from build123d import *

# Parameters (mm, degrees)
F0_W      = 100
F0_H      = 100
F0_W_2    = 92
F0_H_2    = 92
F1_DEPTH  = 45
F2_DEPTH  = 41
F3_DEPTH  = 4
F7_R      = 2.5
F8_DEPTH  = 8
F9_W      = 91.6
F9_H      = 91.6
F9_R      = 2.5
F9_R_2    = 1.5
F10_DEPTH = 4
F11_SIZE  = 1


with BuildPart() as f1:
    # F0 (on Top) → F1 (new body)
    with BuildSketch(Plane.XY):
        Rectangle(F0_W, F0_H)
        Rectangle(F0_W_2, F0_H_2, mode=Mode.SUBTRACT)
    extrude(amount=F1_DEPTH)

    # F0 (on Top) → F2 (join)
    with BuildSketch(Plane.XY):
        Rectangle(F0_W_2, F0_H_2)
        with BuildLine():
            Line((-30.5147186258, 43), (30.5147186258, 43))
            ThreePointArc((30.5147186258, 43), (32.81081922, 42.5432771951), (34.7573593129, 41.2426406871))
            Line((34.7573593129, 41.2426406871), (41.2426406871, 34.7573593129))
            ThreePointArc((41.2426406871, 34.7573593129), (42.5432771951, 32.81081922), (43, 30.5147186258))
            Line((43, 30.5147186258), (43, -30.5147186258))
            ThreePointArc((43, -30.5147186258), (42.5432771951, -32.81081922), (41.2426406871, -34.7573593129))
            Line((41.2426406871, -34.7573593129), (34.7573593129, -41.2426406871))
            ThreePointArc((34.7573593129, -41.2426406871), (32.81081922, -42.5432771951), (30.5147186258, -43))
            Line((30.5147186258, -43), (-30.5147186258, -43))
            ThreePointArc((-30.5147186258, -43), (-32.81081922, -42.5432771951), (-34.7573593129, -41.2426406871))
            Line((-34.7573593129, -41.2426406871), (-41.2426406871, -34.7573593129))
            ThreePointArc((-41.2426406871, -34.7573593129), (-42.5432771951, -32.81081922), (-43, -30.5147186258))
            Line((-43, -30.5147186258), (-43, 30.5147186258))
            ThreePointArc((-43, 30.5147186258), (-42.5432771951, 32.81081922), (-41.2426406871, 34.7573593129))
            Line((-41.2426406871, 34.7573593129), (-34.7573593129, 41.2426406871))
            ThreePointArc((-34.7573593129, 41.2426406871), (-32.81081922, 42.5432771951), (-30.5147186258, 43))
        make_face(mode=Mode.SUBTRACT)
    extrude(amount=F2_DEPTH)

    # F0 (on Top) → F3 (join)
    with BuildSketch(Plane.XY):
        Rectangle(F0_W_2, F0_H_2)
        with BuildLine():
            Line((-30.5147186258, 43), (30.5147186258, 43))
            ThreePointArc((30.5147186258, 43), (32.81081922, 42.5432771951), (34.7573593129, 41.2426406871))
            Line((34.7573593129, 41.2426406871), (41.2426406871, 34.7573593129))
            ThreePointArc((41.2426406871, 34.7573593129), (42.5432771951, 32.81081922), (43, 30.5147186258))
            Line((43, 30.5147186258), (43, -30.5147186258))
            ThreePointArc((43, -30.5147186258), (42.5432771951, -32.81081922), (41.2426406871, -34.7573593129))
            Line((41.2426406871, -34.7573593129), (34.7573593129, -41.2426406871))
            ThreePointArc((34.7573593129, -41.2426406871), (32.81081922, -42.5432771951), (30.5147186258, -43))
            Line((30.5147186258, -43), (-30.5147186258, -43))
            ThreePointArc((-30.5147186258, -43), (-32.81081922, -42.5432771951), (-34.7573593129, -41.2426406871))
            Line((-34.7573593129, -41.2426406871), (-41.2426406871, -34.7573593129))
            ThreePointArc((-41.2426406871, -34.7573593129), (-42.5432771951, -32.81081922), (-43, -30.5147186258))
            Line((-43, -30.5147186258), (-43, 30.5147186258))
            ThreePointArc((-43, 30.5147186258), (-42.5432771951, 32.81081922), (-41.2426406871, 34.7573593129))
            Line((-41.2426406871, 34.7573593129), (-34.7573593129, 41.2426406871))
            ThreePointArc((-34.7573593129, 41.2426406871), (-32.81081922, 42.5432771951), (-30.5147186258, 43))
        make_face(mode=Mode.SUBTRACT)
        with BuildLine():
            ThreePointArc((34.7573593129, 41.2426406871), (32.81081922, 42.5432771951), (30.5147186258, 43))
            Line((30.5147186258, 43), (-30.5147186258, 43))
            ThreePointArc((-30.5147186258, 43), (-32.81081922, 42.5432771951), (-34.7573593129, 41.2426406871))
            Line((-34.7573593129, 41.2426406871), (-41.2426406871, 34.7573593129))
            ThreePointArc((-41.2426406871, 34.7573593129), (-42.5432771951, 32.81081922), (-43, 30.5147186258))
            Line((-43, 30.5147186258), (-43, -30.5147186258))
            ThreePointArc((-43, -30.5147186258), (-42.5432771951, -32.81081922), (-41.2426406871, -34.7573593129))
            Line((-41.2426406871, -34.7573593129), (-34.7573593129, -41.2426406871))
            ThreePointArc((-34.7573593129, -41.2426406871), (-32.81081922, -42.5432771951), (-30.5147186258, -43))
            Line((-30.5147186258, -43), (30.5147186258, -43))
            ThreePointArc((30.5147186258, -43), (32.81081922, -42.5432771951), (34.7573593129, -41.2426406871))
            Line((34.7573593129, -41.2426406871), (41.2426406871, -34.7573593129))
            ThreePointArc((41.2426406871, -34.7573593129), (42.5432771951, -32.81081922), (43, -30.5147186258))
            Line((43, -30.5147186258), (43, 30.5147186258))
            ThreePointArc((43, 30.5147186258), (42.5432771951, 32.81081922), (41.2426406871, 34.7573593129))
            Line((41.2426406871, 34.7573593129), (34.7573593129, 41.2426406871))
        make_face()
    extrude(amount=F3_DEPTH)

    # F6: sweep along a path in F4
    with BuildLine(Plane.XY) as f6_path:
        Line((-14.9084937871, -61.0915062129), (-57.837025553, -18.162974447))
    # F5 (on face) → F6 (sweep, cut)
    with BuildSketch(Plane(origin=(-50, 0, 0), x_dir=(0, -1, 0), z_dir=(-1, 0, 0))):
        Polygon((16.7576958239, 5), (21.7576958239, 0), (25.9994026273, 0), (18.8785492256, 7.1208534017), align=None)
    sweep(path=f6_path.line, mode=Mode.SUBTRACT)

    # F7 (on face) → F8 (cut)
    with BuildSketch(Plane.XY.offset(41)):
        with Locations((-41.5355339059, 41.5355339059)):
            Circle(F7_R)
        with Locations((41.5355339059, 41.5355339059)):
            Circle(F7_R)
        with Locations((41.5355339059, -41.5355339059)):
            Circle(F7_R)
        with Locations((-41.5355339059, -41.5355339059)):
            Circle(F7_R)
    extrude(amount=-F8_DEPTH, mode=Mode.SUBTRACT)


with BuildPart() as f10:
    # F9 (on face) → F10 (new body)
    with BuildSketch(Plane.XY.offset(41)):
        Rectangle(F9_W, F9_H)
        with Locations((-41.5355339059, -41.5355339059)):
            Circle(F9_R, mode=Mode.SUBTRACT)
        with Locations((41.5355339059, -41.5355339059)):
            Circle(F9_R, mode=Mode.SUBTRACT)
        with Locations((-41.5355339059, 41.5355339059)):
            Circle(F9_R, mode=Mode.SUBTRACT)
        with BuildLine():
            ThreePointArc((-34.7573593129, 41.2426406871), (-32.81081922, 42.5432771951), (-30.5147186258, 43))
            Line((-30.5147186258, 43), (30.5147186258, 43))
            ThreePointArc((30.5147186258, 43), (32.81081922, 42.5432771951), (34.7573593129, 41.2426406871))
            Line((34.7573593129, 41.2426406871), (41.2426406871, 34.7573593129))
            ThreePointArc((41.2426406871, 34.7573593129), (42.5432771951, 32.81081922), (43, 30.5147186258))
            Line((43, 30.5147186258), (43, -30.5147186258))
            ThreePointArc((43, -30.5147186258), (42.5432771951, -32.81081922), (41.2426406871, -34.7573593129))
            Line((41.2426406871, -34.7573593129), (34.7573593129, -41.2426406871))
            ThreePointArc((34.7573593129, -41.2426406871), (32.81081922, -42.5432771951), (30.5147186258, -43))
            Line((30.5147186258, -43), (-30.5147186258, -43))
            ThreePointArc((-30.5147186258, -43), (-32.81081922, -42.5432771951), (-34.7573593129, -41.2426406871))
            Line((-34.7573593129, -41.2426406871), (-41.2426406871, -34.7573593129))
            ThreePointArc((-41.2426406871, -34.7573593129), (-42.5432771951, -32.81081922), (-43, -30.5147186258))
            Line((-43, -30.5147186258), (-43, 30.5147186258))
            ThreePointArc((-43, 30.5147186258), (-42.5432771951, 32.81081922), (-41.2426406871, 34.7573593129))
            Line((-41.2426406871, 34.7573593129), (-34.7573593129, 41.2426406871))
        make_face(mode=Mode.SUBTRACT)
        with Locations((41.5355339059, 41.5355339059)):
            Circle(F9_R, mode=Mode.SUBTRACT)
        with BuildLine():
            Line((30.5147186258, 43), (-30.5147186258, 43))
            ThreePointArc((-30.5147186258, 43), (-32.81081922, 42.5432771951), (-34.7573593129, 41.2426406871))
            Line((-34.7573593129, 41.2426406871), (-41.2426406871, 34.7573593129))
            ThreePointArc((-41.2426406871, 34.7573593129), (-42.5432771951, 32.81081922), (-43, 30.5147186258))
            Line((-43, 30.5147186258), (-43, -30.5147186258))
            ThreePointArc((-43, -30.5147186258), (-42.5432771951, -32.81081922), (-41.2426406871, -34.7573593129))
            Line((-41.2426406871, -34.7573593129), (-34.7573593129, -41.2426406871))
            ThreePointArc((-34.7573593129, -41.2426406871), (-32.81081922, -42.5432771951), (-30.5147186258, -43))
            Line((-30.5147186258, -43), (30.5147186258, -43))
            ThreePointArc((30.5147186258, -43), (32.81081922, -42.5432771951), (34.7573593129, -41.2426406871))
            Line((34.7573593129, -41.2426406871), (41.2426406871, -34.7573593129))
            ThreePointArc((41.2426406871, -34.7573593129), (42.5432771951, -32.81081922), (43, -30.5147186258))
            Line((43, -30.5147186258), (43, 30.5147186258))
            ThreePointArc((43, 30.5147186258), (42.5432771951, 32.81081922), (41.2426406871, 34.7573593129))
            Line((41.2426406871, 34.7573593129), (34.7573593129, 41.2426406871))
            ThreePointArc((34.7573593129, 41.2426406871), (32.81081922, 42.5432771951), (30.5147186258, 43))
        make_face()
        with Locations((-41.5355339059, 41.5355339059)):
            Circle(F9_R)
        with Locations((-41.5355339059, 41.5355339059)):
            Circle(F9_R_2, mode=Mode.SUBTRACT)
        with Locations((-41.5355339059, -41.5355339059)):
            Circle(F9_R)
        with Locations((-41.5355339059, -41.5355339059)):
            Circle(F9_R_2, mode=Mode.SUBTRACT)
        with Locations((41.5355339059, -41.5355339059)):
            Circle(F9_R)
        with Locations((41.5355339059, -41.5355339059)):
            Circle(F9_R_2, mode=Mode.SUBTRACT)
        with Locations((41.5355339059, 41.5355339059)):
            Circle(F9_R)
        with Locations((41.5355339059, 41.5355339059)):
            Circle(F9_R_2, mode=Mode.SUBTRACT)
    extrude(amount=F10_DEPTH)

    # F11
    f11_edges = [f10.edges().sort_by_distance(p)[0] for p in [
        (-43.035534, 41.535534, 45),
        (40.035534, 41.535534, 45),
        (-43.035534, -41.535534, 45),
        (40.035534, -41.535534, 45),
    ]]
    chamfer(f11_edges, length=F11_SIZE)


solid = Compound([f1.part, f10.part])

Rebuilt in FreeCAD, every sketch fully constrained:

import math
import FreeCAD as App
import Part
import Sketcher
from FreeCAD import Vector
Q = App.Units.Quantity


def edges_at(feature, points):
    """Names of the edges that pass closest to the given points."""
    edges = feature.Shape.Edges
    near = lambda p: min(range(len(edges)), key=lambda i: edges[i].distToShape(Part.Vertex(*p))[0])
    return sorted({f"Edge{near(p) + 1}" for p in points})


def add_polygon(sketch, points):
    """Adds a closed chain of lines whose ends are joined by coincident constraints."""
    first, n = sketch.GeometryCount, len(points)
    for a, b in zip(points, points[1:] + points[:1]):
        sketch.addGeometry(Part.LineSegment(App.Vector(*a, 0), App.Vector(*b, 0)), False)
    for i in range(n):
        sketch.addConstraint(Sketcher.Constraint("Coincident", first + i, 2, first + (i + 1) % n, 1))

doc = App.newDocument("Part")
body = doc.addObject("PartDesign::Body", "Body")

# Sketch on XY plane
sketch1 = body.newObject("Sketcher::SketchObject", "Sketch")
sketch1.AttachmentSupport = (doc.getObject("XY_Plane"), [""])
sketch1.MapMode = "FlatFace"
add_polygon(sketch1, [(-50, 50), (-50, -50), (50, -50), (50, 50)])  # lines 0-3
add_polygon(sketch1, [(46, -46), (-46, -46), (-46, 46), (46, 46)])  # lines 4-7
sketch1.addConstraint(Sketcher.Constraint("Vertical", 0))
sketch1.addConstraint(Sketcher.Constraint("Horizontal", 1))
sketch1.addConstraint(Sketcher.Constraint("Vertical", 2))
sketch1.addConstraint(Sketcher.Constraint("Horizontal", 3))
sketch1.addConstraint(Sketcher.Constraint("Horizontal", 4))
sketch1.addConstraint(Sketcher.Constraint("Vertical", 5))
sketch1.addConstraint(Sketcher.Constraint("Horizontal", 6))
sketch1.addConstraint(Sketcher.Constraint("Vertical", 7))
sketch1.addConstraint(Sketcher.Constraint("Symmetric", 0, 2, 2, 2, -1, 1))
sketch1.addConstraint(Sketcher.Constraint("Symmetric", 4, 2, 6, 2, -1, 1))
sketch1.addConstraint(Sketcher.Constraint("Equal", 3, 0))
sketch1.addConstraint(Sketcher.Constraint("Equal", 6, 5))
sketch1.addConstraint(Sketcher.Constraint("DistanceX", 1, 1, 1, 2, Q("100 mm")))
sketch1.addConstraint(Sketcher.Constraint("DistanceX", 4, 2, 4, 1, Q("92 mm")))
pad1 = body.newObject("PartDesign::Pad", "Pad")
pad1.Profile = sketch1
pad1.Length = 45

# Sketch on XY plane
sketch2 = body.newObject("Sketcher::SketchObject", "Sketch001")
sketch2.AttachmentSupport = (doc.getObject("XY_Plane"), [""])
sketch2.MapMode = "FlatFace"
add_polygon(sketch2, [(-46, 46), (-46, -46), (46, -46), (46, 46)])  # lines 0-3
sketch2.addGeometry(Part.ArcOfCircle(Part.Circle(Vector(-30.514719, 37, 0), Vector(0, 0, 1), 6), math.radians(90), math.radians(135)), False)  # 4
sketch2.addGeometry(Part.LineSegment(Vector(-30.514719, 43, 0), Vector(30.514719, 43, 0)), False)  # 5
sketch2.addGeometry(Part.ArcOfCircle(Part.Circle(Vector(30.514719, 37, 0), Vector(0, 0, 1), 6), math.radians(45), math.radians(90)), False)  # 6
sketch2.addGeometry(Part.LineSegment(Vector(34.757359, 41.242641, 0), Vector(41.242641, 34.757359, 0)), False)  # 7
sketch2.addGeometry(Part.ArcOfCircle(Part.Circle(Vector(37, 30.514719, 0), Vector(0, 0, 1), 6), math.radians(0), math.radians(45)), False)  # 8
sketch2.addGeometry(Part.LineSegment(Vector(43, 30.514719, 0), Vector(43, -30.514719, 0)), False)  # 9
sketch2.addGeometry(Part.ArcOfCircle(Part.Circle(Vector(37, -30.514719, 0), Vector(0, 0, 1), 6), math.radians(-45), math.radians(0)), False)  # 10
sketch2.addGeometry(Part.LineSegment(Vector(41.242641, -34.757359, 0), Vector(34.757359, -41.242641, 0)), False)  # 11
sketch2.addGeometry(Part.ArcOfCircle(Part.Circle(Vector(30.514719, -37, 0), Vector(0, 0, 1), 6), math.radians(-90), math.radians(-45)), False)  # 12
sketch2.addGeometry(Part.LineSegment(Vector(30.514719, -43, 0), Vector(-30.514719, -43, 0)), False)  # 13
sketch2.addGeometry(Part.ArcOfCircle(Part.Circle(Vector(-30.514719, -37, 0), Vector(0, 0, 1), 6), math.radians(-135), math.radians(-90)), False)  # 14
sketch2.addGeometry(Part.LineSegment(Vector(-34.757359, -41.242641, 0), Vector(-41.242641, -34.757359, 0)), False)  # 15
sketch2.addGeometry(Part.ArcOfCircle(Part.Circle(Vector(-37, -30.514719, 0), Vector(0, 0, 1), 6), math.radians(180), math.radians(225)), False)  # 16
sketch2.addGeometry(Part.LineSegment(Vector(-43, -30.514719, 0), Vector(-43, 30.514719, 0)), False)  # 17
sketch2.addGeometry(Part.ArcOfCircle(Part.Circle(Vector(-37, 30.514719, 0), Vector(0, 0, 1), 6), math.radians(135), math.radians(180)), False)  # 18
sketch2.addGeometry(Part.LineSegment(Vector(-41.242641, 34.757359, 0), Vector(-34.757359, 41.242641, 0)), False)  # 19
sketch2.addConstraint(Sketcher.Constraint("Tangent", 4, 1, 5, 1))
sketch2.addConstraint(Sketcher.Constraint("Tangent", 5, 2, 6, 2))
sketch2.addConstraint(Sketcher.Constraint("Tangent", 6, 1, 7, 1))
sketch2.addConstraint(Sketcher.Constraint("Tangent", 7, 2, 8, 2))
sketch2.addConstraint(Sketcher.Constraint("Tangent", 8, 1, 9, 1))
sketch2.addConstraint(Sketcher.Constraint("Tangent", 9, 2, 10, 2))
sketch2.addConstraint(Sketcher.Constraint("Tangent", 10, 1, 11, 1))
sketch2.addConstraint(Sketcher.Constraint("Tangent", 11, 2, 12, 2))
sketch2.addConstraint(Sketcher.Constraint("Tangent", 12, 1, 13, 1))
sketch2.addConstraint(Sketcher.Constraint("Tangent", 13, 2, 14, 2))
sketch2.addConstraint(Sketcher.Constraint("Tangent", 14, 1, 15, 1))
sketch2.addConstraint(Sketcher.Constraint("Tangent", 15, 2, 16, 2))
sketch2.addConstraint(Sketcher.Constraint("Tangent", 16, 1, 17, 1))
sketch2.addConstraint(Sketcher.Constraint("Tangent", 17, 2, 18, 2))
sketch2.addConstraint(Sketcher.Constraint("Tangent", 18, 1, 19, 1))
sketch2.addConstraint(Sketcher.Constraint("Tangent", 19, 2, 4, 2))
sketch2.addConstraint(Sketcher.Constraint("Vertical", 0))
sketch2.addConstraint(Sketcher.Constraint("Horizontal", 1))
sketch2.addConstraint(Sketcher.Constraint("Vertical", 2))
sketch2.addConstraint(Sketcher.Constraint("Horizontal", 3))
sketch2.addConstraint(Sketcher.Constraint("Horizontal", 5))
sketch2.addConstraint(Sketcher.Constraint("Vertical", 9))
sketch2.addConstraint(Sketcher.Constraint("Horizontal", 13))
sketch2.addConstraint(Sketcher.Constraint("Vertical", 17))
sketch2.addConstraint(Sketcher.Constraint("Equal", 4, 6))
sketch2.addConstraint(Sketcher.Constraint("Equal", 6, 8))
sketch2.addConstraint(Sketcher.Constraint("Equal", 8, 10))
sketch2.addConstraint(Sketcher.Constraint("Equal", 10, 12))
sketch2.addConstraint(Sketcher.Constraint("Equal", 12, 14))
sketch2.addConstraint(Sketcher.Constraint("Equal", 14, 16))
sketch2.addConstraint(Sketcher.Constraint("Equal", 16, 18))
sketch2.addConstraint(Sketcher.Constraint("Symmetric", 4, 3, 12, 3, -1, 1))
sketch2.addConstraint(Sketcher.Constraint("Symmetric", 8, 3, 16, 3, -1, 1))
sketch2.addConstraint(Sketcher.Constraint("Symmetric", 0, 2, 2, 2, -1, 1))
sketch2.addConstraint(Sketcher.Constraint("Symmetric", 11, 2, 14, 1, -2))
sketch2.addConstraint(Sketcher.Constraint("Symmetric", 7, 2, 18, 1, -2))
sketch2.addConstraint(Sketcher.Constraint("Perpendicular", 7, 11))
sketch2.addConstraint(Sketcher.Constraint("Equal", 3, 0))
sketch2.addConstraint(Sketcher.Constraint("Equal", 13, 9))
sketch2.addConstraint(Sketcher.Constraint("Radius", 4, Q("6 mm")))
sketch2.addConstraint(Sketcher.Constraint("DistanceX", 1, 1, 1, 2, Q("92 mm")))
sketch2.addConstraint(Sketcher.Constraint("DistanceY", -1, 1, 4, 3, Q("37 mm")))
sketch2.addConstraint(Sketcher.Constraint("DistanceX", 5, 1, 5, 2, Q("61.029437 mm")))
pad2 = body.newObject("PartDesign::Pad", "Pad001")
pad2.Profile = sketch2
pad2.Length = 41

# Sketch on XY plane
sketch3 = body.newObject("Sketcher::SketchObject", "Sketch002")
sketch3.AttachmentSupport = (doc.getObject("XY_Plane"), [""])
sketch3.MapMode = "FlatFace"
add_polygon(sketch3, [(-46, 46), (-46, -46), (46, -46), (46, 46)])  # lines 0-3
sketch3.addConstraint(Sketcher.Constraint("Vertical", 0))
sketch3.addConstraint(Sketcher.Constraint("Horizontal", 1))
sketch3.addConstraint(Sketcher.Constraint("Vertical", 2))
sketch3.addConstraint(Sketcher.Constraint("Horizontal", 3))
sketch3.addConstraint(Sketcher.Constraint("Symmetric", 0, 2, 2, 2, -1, 1))
sketch3.addConstraint(Sketcher.Constraint("Equal", 3, 0))
sketch3.addConstraint(Sketcher.Constraint("DistanceX", 1, 1, 1, 2, Q("92 mm")))
pad3 = body.newObject("PartDesign::Pad", "Pad002")
pad3.Profile = sketch3
pad3.Length = 4

# Sketch on YZ plane
sketch4 = body.newObject("Sketcher::SketchObject", "Sketch003")
sketch4.AttachmentSupport = (doc.getObject("YZ_Plane"), [""])
sketch4.MapMode = "FlatFace"
sketch4.AttachmentOffset = App.Placement(Vector(0, 0, -50), App.Rotation())
add_polygon(sketch4, [(-16.757696, 5), (-21.757696, 0), (-25.999403, 0), (-18.878549, 7.120853)])  # lines 0-3
sketch4.addConstraint(Sketcher.Constraint("Horizontal", 1))
sketch4.addConstraint(Sketcher.Constraint("PointOnObject", 0, 2, -1))
sketch4.addConstraint(Sketcher.Constraint("Parallel", 0, 2))
sketch4.addConstraint(Sketcher.Constraint("Perpendicular", 2, 3))
sketch4.addConstraint(Sketcher.Constraint("Angle", 0, Q("-135 deg")))
sketch4.addConstraint(Sketcher.Constraint("DistanceY", -1, 1, 3, 2, Q("5 mm")))
sketch4.addConstraint(Sketcher.Constraint("Distance", 3, Q("2.99934 mm")))
sketch4.addConstraint(Sketcher.Constraint("DistanceX", 2, 2, -1, 1, Q("18.878549 mm")))

# Sketch on an angled plane
sketch5 = body.newObject("Sketcher::SketchObject", "Sketch004")
sketch5.Placement = App.Placement(Vector(-38, -38, 0), App.Rotation(Vector(-0.707106781, 0.707106781, 0), Vector(0, 0, 0.999999999), Vector(0.707106781, 0.707106781, 0), "ZXY"))
sketch5.addGeometry(Part.LineSegment(Vector(-32.656321, 0, 0), Vector(28.053791, 0, 0)), False)
sketch5.addConstraint(Sketcher.Constraint("Horizontal", 0))
sketch5.addConstraint(Sketcher.Constraint("PointOnObject", 0, 1, -1))
sketch5.addConstraint(Sketcher.Constraint("DistanceX", 0, 1, 0, 2, Q("60.710112 mm")))
sketch5.addConstraint(Sketcher.Constraint("DistanceX", 0, 1, -1, 1, Q("32.656321 mm")))
doc.recompute()

subtractivepipe = body.newObject("PartDesign::SubtractivePipe", "SubtractivePipe")
subtractivepipe.Profile = sketch4
subtractivepipe.Spine = (sketch5, ["Edge1"])

# Sketch on XY plane
sketch6 = body.newObject("Sketcher::SketchObject", "Sketch005")
sketch6.AttachmentSupport = (doc.getObject("XY_Plane"), [""])
sketch6.MapMode = "FlatFace"
sketch6.AttachmentOffset = App.Placement(Vector(0, 0, 41), App.Rotation())
sketch6.addGeometry(Part.Circle(Vector(-41.535534, 41.535534, 0), Vector(0, 0, 1), 2.5), False)
sketch6.addGeometry(Part.Circle(Vector(41.535534, 41.535534, 0), Vector(0, 0, 1), 2.5), False)
sketch6.addGeometry(Part.Circle(Vector(41.535534, -41.535534, 0), Vector(0, 0, 1), 2.5), False)
sketch6.addGeometry(Part.Circle(Vector(-41.535534, -41.535534, 0), Vector(0, 0, 1), 2.5), False)
sketch6.addConstraint(Sketcher.Constraint("Equal", 0, 1))
sketch6.addConstraint(Sketcher.Constraint("Equal", 1, 2))
sketch6.addConstraint(Sketcher.Constraint("Equal", 2, 3))
sketch6.addConstraint(Sketcher.Constraint("Symmetric", 0, 3, 2, 3, -1, 1))
sketch6.addConstraint(Sketcher.Constraint("Symmetric", 1, 3, 3, 3, -1, 1))
sketch6.addConstraint(Sketcher.Constraint("Symmetric", 0, 3, 1, 3, -2))
sketch6.addConstraint(Sketcher.Constraint("Diameter", 0, Q("5 mm")))
sketch6.addConstraint(Sketcher.Constraint("DistanceX", 0, 3, -1, 1, Q("41.535534 mm")))
sketch6.addConstraint(Sketcher.Constraint("DistanceY", -1, 1, 0, 3, Q("41.535534 mm")))
pocket1 = body.newObject("PartDesign::Pocket", "Pocket")
pocket1.Profile = sketch6
pocket1.Length = 8
body2 = doc.addObject("PartDesign::Body", "Body001")

# Sketch on XY plane
sketch7 = body2.newObject("Sketcher::SketchObject", "Sketch006")
sketch7.AttachmentSupport = (doc.getObject("XY_Plane001"), [""])
sketch7.MapMode = "FlatFace"
sketch7.AttachmentOffset = App.Placement(Vector(0, 0, 41), App.Rotation())
add_polygon(sketch7, [(-45.8, 45.8), (-45.8, -45.8), (45.8, -45.8), (45.8, 45.8)])  # lines 0-3
sketch7.addGeometry(Part.Circle(Vector(-41.535534, -41.535534, 0), Vector(0, 0, 1), 1.5), False)  # 4
sketch7.addGeometry(Part.Circle(Vector(41.535534, -41.535534, 0), Vector(0, 0, 1), 1.5), False)  # 5
sketch7.addGeometry(Part.Circle(Vector(-41.535534, 41.535534, 0), Vector(0, 0, 1), 1.5), False)  # 6
sketch7.addGeometry(Part.Circle(Vector(41.535534, 41.535534, 0), Vector(0, 0, 1), 1.5), False)  # 7
sketch7.addConstraint(Sketcher.Constraint("Vertical", 0))
sketch7.addConstraint(Sketcher.Constraint("Horizontal", 1))
sketch7.addConstraint(Sketcher.Constraint("Vertical", 2))
sketch7.addConstraint(Sketcher.Constraint("Horizontal", 3))
sketch7.addConstraint(Sketcher.Constraint("Equal", 4, 5))
sketch7.addConstraint(Sketcher.Constraint("Equal", 5, 6))
sketch7.addConstraint(Sketcher.Constraint("Equal", 6, 7))
sketch7.addConstraint(Sketcher.Constraint("Symmetric", 5, 3, 6, 3, -1, 1))
sketch7.addConstraint(Sketcher.Constraint("Symmetric", 4, 3, 7, 3, -1, 1))
sketch7.addConstraint(Sketcher.Constraint("Symmetric", 0, 2, 2, 2, -1, 1))
sketch7.addConstraint(Sketcher.Constraint("Symmetric", 4, 3, 5, 3, -2))
sketch7.addConstraint(Sketcher.Constraint("Equal", 3, 0))
sketch7.addConstraint(Sketcher.Constraint("Diameter", 4, Q("3 mm")))
sketch7.addConstraint(Sketcher.Constraint("DistanceX", 1, 1, 1, 2, Q("91.6 mm")))
sketch7.addConstraint(Sketcher.Constraint("DistanceX", 4, 3, -1, 1, Q("41.535534 mm")))
sketch7.addConstraint(Sketcher.Constraint("DistanceY", 4, 3, -1, 1, Q("41.535534 mm")))
pad4 = body2.newObject("PartDesign::Pad", "Pad003")
pad4.Profile = sketch7
pad4.Length = 4
doc.recompute()

chamfer = body2.newObject("PartDesign::Chamfer", "Chamfer")
chamfer.Base = (pad4, edges_at(pad4, [
    (-43.036, 41.536, 45),
    (40.036, 41.536, 45),
    (-43.036, -41.536, 45),
    (40.036, -41.536, 45),
]))
chamfer.Size = 1

doc.recompute()
